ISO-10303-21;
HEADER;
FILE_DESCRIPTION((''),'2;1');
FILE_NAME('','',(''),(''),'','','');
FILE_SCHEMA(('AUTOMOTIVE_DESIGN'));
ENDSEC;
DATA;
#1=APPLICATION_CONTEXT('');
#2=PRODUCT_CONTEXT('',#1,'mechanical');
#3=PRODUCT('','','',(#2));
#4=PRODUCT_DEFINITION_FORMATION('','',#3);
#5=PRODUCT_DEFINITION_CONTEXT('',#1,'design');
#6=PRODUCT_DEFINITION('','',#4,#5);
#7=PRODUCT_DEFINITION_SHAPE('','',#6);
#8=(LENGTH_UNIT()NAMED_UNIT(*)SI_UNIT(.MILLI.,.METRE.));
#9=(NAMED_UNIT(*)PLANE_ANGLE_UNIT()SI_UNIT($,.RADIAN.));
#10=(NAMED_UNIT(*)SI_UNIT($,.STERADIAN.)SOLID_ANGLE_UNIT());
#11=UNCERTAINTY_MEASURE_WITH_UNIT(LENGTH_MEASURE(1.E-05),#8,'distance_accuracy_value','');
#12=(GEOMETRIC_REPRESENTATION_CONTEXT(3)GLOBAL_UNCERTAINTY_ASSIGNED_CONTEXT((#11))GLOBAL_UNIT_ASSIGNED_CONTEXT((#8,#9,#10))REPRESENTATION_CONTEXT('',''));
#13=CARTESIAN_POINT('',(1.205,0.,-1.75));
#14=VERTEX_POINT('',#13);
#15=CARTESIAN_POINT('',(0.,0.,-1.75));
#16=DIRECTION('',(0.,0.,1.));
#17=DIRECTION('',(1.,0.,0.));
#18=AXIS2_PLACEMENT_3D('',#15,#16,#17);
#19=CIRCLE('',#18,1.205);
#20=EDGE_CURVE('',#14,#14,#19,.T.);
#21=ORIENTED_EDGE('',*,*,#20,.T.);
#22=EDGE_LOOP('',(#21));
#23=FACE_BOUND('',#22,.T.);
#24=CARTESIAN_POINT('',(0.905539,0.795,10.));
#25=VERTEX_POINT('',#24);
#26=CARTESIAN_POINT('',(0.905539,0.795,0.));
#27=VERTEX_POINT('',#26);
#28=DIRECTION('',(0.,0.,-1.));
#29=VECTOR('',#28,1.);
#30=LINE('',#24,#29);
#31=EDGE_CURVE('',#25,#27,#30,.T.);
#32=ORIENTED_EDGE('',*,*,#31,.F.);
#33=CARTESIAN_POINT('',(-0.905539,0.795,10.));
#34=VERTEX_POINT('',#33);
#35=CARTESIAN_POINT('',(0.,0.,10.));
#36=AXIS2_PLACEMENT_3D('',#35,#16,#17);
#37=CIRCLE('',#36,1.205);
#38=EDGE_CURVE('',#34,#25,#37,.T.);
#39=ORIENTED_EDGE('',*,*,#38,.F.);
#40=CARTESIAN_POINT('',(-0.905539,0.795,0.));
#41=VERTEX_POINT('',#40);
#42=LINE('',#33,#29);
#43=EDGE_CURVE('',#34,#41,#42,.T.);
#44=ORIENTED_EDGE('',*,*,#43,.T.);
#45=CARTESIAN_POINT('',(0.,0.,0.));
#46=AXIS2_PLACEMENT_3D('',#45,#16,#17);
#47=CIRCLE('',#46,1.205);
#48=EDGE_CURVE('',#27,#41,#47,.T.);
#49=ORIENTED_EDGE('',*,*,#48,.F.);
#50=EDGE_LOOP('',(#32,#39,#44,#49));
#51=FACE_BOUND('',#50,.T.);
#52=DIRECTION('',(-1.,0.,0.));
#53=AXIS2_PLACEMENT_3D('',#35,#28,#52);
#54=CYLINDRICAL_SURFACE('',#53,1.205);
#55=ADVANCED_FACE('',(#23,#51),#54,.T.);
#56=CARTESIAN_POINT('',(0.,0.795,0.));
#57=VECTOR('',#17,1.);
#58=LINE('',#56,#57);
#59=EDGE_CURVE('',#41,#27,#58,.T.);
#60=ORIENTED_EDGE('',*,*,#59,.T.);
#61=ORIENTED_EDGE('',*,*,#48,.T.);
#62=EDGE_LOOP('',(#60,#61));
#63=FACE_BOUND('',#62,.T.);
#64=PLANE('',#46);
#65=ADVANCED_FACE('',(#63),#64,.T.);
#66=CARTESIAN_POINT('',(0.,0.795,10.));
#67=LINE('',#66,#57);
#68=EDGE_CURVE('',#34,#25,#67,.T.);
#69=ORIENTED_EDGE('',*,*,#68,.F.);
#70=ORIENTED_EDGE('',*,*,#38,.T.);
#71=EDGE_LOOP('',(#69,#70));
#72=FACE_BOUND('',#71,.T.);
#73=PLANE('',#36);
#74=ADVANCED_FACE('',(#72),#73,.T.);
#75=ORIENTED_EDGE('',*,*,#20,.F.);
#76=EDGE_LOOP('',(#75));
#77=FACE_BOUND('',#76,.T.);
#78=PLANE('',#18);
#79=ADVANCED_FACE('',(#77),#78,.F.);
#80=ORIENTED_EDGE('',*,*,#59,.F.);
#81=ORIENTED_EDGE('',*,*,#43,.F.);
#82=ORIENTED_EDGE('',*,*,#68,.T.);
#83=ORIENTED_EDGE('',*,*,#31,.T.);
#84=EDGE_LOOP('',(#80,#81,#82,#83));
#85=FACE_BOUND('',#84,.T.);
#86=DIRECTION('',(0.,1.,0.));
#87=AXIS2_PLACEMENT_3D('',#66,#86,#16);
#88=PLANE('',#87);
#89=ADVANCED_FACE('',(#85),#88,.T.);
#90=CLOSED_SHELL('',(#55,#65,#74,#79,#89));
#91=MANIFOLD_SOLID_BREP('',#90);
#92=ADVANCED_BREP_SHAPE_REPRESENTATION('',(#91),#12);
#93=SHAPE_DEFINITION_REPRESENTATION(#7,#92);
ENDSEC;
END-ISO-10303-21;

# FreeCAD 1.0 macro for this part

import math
import FreeCAD as App
import Part
import Sketcher

V = App.Vector
Q = App.Units.Quantity

doc = App.newDocument("Part")
body = doc.addObject("PartDesign::Body", "Body")

sketch1 = body.newObject("Sketcher::SketchObject", "Sketch")
sketch1.AttachmentSupport = (doc.getObject("XY_Plane"), [""])
sketch1.MapMode = "FlatFace"
sketch1.addGeometry(Part.LineSegment(V(0.9, 0.8, 0), V(-0.9, 0.8, 0)), False)
sketch1.addGeometry(Part.ArcOfCircle(Part.Circle(V(0, 0, 0), V(0, 0, 1), 1.2), math.radians(139), math.radians(360)), False)
sketch1.addGeometry(Part.ArcOfCircle(Part.Circle(V(0, 0, 0), V(0, 0, 1), 1.2), math.radians(0), math.radians(41)), False)
sketch1.addConstraint(Sketcher.Constraint("Coincident", 0, 2, 1, 1))
sketch1.addConstraint(Sketcher.Constraint("Tangent", 1, 2, 2, 1))
sketch1.addConstraint(Sketcher.Constraint("Coincident", 2, 2, 0, 1))
sketch1.addConstraint(Sketcher.Constraint("Horizontal", 0))
sketch1.addConstraint(Sketcher.Constraint("Coincident", 1, 3, -1, 1))
sketch1.addConstraint(Sketcher.Constraint("Equal", 1, 2))
sketch1.addConstraint(Sketcher.Constraint("PointOnObject", 1, 2, -1))
sketch1.addConstraint(Sketcher.Constraint("Radius", 1, Q("1.205 mm")))
sketch1.addConstraint(Sketcher.Constraint("DistanceY", -1, 1, 0, 2, Q("0.795 mm")))
pad1 = body.newObject("PartDesign::Pad", "Pad")
pad1.Profile = sketch1
pad1.Length = 10

sketch2 = body.newObject("Sketcher::SketchObject", "Sketch001")
sketch2.AttachmentSupport = (doc.getObject("XY_Plane"), [""])
sketch2.MapMode = "FlatFace"
sketch2.AttachmentOffset = App.Placement(V(0, 0, -1.75), App.Rotation())
sketch2.addGeometry(Part.ArcOfCircle(Part.Circle(V(0, 0, 0), V(0, 0, 1), 1.2), math.radians(41), math.radians(139)), False)
sketch2.addGeometry(Part.ArcOfCircle(Part.Circle(V(0, 0, 0), V(0, 0, 1), 1.2), math.radians(139), math.radians(360)), False)
sketch2.addGeometry(Part.ArcOfCircle(Part.Circle(V(0, 0, 0), V(0, 0, 1), 1.2), math.radians(0), math.radians(41)), False)
sketch2.addConstraint(Sketcher.Constraint("Tangent", 0, 2, 1, 1))
sketch2.addConstraint(Sketcher.Constraint("Tangent", 1, 2, 2, 1))
sketch2.addConstraint(Sketcher.Constraint("Tangent", 2, 2, 0, 1))
sketch2.addConstraint(Sketcher.Constraint("Coincident", 0, 3, -1, 1))
sketch2.addConstraint(Sketcher.Constraint("PointOnObject", 1, 2, -1))
sketch2.addConstraint(Sketcher.Constraint("Horizontal", 0, 2, 2, 2))
sketch2.addConstraint(Sketcher.Constraint("Radius", 0, Q("1.205 mm")))
sketch2.addConstraint(Sketcher.Constraint("DistanceY", -1, 1, 0, 2, Q("0.795 mm")))
pad2 = body.newObject("PartDesign::Pad", "Pad001")
pad2.Profile = sketch2
pad2.Length = 1.75

doc.recompute()
